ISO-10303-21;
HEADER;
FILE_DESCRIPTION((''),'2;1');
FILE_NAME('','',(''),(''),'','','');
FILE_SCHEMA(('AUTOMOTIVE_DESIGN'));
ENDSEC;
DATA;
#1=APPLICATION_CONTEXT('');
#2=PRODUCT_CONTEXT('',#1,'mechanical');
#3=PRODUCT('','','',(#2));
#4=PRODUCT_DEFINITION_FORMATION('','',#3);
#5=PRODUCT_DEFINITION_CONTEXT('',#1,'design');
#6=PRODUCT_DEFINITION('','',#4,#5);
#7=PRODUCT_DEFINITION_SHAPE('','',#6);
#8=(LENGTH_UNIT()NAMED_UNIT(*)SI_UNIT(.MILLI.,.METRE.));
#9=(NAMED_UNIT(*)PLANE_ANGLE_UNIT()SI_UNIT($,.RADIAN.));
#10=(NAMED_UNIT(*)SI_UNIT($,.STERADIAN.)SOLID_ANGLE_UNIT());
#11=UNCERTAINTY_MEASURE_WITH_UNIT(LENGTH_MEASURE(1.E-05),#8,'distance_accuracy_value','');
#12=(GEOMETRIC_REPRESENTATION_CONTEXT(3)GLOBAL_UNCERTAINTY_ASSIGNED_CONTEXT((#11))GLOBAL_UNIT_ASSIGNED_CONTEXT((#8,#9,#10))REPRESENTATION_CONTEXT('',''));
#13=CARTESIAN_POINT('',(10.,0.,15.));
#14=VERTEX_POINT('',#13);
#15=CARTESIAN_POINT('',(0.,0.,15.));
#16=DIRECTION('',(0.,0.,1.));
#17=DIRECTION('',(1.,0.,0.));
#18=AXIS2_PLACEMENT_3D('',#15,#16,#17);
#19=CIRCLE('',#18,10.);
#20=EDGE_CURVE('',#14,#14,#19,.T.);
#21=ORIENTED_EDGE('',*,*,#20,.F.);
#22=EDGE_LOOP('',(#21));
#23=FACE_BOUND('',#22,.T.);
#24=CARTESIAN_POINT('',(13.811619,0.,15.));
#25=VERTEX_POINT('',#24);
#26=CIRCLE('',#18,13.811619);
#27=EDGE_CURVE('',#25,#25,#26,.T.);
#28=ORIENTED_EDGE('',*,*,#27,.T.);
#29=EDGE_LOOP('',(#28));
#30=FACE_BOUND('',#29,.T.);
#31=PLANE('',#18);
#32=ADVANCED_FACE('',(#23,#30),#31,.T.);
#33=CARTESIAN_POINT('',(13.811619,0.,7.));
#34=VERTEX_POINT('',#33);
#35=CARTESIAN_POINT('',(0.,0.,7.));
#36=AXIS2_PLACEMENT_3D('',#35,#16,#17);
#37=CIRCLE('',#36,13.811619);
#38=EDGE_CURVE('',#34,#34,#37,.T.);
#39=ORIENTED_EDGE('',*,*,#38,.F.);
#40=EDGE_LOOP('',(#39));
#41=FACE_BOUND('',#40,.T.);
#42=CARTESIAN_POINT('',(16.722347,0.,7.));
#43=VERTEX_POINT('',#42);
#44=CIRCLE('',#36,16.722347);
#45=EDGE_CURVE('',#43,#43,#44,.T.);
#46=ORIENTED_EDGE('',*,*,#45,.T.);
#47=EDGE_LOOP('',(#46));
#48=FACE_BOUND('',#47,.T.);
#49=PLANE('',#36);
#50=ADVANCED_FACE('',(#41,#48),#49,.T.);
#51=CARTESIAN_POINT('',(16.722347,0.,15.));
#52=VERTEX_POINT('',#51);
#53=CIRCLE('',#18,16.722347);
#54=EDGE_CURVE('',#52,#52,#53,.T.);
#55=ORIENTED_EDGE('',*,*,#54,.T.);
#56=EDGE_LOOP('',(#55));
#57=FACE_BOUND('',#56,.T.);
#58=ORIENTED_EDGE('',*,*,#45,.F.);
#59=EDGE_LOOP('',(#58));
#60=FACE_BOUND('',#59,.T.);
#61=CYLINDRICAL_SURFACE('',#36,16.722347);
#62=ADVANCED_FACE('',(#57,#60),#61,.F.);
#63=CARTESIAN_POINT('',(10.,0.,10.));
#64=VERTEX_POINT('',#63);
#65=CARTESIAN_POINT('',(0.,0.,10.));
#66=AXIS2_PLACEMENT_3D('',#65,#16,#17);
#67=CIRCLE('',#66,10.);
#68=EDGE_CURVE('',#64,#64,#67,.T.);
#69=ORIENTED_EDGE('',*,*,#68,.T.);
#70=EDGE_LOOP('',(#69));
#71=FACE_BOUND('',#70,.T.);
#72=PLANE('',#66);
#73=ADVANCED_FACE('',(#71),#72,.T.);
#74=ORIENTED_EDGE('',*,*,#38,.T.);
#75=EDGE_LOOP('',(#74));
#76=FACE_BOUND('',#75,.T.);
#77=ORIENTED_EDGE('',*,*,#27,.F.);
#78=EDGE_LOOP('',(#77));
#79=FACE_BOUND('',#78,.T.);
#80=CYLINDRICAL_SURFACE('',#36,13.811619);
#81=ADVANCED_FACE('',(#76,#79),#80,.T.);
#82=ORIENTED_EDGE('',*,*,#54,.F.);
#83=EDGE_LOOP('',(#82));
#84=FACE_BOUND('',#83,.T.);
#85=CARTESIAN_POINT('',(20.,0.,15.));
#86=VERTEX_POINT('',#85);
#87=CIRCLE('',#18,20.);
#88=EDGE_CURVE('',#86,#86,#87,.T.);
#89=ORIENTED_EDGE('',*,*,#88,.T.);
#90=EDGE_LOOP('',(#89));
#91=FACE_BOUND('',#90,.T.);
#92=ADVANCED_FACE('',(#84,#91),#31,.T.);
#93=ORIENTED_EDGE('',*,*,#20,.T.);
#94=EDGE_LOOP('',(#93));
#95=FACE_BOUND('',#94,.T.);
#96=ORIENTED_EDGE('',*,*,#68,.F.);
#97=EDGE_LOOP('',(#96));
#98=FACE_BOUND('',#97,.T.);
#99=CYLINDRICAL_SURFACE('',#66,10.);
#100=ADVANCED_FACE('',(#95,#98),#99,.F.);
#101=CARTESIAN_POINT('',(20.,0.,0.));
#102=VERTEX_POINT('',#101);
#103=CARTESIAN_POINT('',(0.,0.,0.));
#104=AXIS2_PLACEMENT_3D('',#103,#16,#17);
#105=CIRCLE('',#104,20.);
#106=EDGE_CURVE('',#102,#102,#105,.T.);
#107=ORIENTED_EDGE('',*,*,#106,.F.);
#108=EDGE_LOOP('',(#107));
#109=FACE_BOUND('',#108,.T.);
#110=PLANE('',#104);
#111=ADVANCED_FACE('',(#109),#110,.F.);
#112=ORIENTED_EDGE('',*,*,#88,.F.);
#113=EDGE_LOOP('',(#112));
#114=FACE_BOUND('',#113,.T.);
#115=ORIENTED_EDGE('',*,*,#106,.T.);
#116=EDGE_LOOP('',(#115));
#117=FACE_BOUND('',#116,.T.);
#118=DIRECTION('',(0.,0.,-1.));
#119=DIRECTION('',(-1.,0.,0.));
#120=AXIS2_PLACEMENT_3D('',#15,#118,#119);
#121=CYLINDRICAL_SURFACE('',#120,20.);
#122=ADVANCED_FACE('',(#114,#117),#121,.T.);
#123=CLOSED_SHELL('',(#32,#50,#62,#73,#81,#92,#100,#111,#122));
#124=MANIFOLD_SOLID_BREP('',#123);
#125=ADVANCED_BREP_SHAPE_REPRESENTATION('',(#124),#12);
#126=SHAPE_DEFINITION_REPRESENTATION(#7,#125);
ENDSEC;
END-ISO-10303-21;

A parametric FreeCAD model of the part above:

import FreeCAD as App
import Part
import Sketcher
from FreeCAD import Vector

doc = App.newDocument("Part")
body = doc.addObject("PartDesign::Body", "Body")

# Sketch on XY plane
sketch1 = body.newObject("Sketcher::SketchObject", "Sketch")
sketch1.AttachmentSupport = (doc.getObject("XY_Plane"), [""])
sketch1.MapMode = "FlatFace"
sketch1.addGeometry(Part.Circle(Vector(0, 0, 0), Vector(0, 0, 1), 20), False)
sketch1.addConstraint(Sketcher.Constraint("Coincident", 0, 3, -1, 1))
sketch1.addConstraint(Sketcher.Constraint("Diameter", 0, 40.0))
pad1 = body.newObject("PartDesign::Pad", "Pad")
pad1.Profile = sketch1
pad1.Length = 15

# Sketch on XY plane
sketch2 = body.newObject("Sketcher::SketchObject", "Sketch001")
sketch2.AttachmentSupport = (doc.getObject("XY_Plane"), [""])
sketch2.MapMode = "FlatFace"
sketch2.AttachmentOffset = App.Placement(Vector(0, 0, 15), App.Rotation())
sketch2.addGeometry(Part.Circle(Vector(0, 0, 0), Vector(0, 0, 1), 10), False)
sketch2.addConstraint(Sketcher.Constraint("Coincident", 0, 3, -1, 1))
sketch2.addConstraint(Sketcher.Constraint("Diameter", 0, 20.0))
pocket1 = body.newObject("PartDesign::Pocket", "Pocket")
pocket1.Profile = sketch2
pocket1.Length = 5

# Sketch on XY plane
sketch3 = body.newObject("Sketcher::SketchObject", "Sketch002")
sketch3.AttachmentSupport = (doc.getObject("XY_Plane"), [""])
sketch3.MapMode = "FlatFace"
sketch3.AttachmentOffset = App.Placement(Vector(0, 0, 15), App.Rotation())
sketch3.addGeometry(Part.Circle(Vector(0, 0, 0), Vector(0, 0, 1), 16.722347), False)
sketch3.addGeometry(Part.Circle(Vector(0, 0, 0), Vector(0, 0, 1), 13.811619), False)
sketch3.addConstraint(Sketcher.Constraint("Coincident", 0, 3, -1, 1))
sketch3.addConstraint(Sketcher.Constraint("Coincident", 1, 3, -1, 1))
sketch3.addConstraint(Sketcher.Constraint("Diameter", 1, 27.623238))
sketch3.addConstraint(Sketcher.Constraint("Diameter", 0, 33.444694))
pocket2 = body.newObject("PartDesign::Pocket", "Pocket001")
pocket2.Profile = sketch3
pocket2.Length = 8

doc.recompute()
